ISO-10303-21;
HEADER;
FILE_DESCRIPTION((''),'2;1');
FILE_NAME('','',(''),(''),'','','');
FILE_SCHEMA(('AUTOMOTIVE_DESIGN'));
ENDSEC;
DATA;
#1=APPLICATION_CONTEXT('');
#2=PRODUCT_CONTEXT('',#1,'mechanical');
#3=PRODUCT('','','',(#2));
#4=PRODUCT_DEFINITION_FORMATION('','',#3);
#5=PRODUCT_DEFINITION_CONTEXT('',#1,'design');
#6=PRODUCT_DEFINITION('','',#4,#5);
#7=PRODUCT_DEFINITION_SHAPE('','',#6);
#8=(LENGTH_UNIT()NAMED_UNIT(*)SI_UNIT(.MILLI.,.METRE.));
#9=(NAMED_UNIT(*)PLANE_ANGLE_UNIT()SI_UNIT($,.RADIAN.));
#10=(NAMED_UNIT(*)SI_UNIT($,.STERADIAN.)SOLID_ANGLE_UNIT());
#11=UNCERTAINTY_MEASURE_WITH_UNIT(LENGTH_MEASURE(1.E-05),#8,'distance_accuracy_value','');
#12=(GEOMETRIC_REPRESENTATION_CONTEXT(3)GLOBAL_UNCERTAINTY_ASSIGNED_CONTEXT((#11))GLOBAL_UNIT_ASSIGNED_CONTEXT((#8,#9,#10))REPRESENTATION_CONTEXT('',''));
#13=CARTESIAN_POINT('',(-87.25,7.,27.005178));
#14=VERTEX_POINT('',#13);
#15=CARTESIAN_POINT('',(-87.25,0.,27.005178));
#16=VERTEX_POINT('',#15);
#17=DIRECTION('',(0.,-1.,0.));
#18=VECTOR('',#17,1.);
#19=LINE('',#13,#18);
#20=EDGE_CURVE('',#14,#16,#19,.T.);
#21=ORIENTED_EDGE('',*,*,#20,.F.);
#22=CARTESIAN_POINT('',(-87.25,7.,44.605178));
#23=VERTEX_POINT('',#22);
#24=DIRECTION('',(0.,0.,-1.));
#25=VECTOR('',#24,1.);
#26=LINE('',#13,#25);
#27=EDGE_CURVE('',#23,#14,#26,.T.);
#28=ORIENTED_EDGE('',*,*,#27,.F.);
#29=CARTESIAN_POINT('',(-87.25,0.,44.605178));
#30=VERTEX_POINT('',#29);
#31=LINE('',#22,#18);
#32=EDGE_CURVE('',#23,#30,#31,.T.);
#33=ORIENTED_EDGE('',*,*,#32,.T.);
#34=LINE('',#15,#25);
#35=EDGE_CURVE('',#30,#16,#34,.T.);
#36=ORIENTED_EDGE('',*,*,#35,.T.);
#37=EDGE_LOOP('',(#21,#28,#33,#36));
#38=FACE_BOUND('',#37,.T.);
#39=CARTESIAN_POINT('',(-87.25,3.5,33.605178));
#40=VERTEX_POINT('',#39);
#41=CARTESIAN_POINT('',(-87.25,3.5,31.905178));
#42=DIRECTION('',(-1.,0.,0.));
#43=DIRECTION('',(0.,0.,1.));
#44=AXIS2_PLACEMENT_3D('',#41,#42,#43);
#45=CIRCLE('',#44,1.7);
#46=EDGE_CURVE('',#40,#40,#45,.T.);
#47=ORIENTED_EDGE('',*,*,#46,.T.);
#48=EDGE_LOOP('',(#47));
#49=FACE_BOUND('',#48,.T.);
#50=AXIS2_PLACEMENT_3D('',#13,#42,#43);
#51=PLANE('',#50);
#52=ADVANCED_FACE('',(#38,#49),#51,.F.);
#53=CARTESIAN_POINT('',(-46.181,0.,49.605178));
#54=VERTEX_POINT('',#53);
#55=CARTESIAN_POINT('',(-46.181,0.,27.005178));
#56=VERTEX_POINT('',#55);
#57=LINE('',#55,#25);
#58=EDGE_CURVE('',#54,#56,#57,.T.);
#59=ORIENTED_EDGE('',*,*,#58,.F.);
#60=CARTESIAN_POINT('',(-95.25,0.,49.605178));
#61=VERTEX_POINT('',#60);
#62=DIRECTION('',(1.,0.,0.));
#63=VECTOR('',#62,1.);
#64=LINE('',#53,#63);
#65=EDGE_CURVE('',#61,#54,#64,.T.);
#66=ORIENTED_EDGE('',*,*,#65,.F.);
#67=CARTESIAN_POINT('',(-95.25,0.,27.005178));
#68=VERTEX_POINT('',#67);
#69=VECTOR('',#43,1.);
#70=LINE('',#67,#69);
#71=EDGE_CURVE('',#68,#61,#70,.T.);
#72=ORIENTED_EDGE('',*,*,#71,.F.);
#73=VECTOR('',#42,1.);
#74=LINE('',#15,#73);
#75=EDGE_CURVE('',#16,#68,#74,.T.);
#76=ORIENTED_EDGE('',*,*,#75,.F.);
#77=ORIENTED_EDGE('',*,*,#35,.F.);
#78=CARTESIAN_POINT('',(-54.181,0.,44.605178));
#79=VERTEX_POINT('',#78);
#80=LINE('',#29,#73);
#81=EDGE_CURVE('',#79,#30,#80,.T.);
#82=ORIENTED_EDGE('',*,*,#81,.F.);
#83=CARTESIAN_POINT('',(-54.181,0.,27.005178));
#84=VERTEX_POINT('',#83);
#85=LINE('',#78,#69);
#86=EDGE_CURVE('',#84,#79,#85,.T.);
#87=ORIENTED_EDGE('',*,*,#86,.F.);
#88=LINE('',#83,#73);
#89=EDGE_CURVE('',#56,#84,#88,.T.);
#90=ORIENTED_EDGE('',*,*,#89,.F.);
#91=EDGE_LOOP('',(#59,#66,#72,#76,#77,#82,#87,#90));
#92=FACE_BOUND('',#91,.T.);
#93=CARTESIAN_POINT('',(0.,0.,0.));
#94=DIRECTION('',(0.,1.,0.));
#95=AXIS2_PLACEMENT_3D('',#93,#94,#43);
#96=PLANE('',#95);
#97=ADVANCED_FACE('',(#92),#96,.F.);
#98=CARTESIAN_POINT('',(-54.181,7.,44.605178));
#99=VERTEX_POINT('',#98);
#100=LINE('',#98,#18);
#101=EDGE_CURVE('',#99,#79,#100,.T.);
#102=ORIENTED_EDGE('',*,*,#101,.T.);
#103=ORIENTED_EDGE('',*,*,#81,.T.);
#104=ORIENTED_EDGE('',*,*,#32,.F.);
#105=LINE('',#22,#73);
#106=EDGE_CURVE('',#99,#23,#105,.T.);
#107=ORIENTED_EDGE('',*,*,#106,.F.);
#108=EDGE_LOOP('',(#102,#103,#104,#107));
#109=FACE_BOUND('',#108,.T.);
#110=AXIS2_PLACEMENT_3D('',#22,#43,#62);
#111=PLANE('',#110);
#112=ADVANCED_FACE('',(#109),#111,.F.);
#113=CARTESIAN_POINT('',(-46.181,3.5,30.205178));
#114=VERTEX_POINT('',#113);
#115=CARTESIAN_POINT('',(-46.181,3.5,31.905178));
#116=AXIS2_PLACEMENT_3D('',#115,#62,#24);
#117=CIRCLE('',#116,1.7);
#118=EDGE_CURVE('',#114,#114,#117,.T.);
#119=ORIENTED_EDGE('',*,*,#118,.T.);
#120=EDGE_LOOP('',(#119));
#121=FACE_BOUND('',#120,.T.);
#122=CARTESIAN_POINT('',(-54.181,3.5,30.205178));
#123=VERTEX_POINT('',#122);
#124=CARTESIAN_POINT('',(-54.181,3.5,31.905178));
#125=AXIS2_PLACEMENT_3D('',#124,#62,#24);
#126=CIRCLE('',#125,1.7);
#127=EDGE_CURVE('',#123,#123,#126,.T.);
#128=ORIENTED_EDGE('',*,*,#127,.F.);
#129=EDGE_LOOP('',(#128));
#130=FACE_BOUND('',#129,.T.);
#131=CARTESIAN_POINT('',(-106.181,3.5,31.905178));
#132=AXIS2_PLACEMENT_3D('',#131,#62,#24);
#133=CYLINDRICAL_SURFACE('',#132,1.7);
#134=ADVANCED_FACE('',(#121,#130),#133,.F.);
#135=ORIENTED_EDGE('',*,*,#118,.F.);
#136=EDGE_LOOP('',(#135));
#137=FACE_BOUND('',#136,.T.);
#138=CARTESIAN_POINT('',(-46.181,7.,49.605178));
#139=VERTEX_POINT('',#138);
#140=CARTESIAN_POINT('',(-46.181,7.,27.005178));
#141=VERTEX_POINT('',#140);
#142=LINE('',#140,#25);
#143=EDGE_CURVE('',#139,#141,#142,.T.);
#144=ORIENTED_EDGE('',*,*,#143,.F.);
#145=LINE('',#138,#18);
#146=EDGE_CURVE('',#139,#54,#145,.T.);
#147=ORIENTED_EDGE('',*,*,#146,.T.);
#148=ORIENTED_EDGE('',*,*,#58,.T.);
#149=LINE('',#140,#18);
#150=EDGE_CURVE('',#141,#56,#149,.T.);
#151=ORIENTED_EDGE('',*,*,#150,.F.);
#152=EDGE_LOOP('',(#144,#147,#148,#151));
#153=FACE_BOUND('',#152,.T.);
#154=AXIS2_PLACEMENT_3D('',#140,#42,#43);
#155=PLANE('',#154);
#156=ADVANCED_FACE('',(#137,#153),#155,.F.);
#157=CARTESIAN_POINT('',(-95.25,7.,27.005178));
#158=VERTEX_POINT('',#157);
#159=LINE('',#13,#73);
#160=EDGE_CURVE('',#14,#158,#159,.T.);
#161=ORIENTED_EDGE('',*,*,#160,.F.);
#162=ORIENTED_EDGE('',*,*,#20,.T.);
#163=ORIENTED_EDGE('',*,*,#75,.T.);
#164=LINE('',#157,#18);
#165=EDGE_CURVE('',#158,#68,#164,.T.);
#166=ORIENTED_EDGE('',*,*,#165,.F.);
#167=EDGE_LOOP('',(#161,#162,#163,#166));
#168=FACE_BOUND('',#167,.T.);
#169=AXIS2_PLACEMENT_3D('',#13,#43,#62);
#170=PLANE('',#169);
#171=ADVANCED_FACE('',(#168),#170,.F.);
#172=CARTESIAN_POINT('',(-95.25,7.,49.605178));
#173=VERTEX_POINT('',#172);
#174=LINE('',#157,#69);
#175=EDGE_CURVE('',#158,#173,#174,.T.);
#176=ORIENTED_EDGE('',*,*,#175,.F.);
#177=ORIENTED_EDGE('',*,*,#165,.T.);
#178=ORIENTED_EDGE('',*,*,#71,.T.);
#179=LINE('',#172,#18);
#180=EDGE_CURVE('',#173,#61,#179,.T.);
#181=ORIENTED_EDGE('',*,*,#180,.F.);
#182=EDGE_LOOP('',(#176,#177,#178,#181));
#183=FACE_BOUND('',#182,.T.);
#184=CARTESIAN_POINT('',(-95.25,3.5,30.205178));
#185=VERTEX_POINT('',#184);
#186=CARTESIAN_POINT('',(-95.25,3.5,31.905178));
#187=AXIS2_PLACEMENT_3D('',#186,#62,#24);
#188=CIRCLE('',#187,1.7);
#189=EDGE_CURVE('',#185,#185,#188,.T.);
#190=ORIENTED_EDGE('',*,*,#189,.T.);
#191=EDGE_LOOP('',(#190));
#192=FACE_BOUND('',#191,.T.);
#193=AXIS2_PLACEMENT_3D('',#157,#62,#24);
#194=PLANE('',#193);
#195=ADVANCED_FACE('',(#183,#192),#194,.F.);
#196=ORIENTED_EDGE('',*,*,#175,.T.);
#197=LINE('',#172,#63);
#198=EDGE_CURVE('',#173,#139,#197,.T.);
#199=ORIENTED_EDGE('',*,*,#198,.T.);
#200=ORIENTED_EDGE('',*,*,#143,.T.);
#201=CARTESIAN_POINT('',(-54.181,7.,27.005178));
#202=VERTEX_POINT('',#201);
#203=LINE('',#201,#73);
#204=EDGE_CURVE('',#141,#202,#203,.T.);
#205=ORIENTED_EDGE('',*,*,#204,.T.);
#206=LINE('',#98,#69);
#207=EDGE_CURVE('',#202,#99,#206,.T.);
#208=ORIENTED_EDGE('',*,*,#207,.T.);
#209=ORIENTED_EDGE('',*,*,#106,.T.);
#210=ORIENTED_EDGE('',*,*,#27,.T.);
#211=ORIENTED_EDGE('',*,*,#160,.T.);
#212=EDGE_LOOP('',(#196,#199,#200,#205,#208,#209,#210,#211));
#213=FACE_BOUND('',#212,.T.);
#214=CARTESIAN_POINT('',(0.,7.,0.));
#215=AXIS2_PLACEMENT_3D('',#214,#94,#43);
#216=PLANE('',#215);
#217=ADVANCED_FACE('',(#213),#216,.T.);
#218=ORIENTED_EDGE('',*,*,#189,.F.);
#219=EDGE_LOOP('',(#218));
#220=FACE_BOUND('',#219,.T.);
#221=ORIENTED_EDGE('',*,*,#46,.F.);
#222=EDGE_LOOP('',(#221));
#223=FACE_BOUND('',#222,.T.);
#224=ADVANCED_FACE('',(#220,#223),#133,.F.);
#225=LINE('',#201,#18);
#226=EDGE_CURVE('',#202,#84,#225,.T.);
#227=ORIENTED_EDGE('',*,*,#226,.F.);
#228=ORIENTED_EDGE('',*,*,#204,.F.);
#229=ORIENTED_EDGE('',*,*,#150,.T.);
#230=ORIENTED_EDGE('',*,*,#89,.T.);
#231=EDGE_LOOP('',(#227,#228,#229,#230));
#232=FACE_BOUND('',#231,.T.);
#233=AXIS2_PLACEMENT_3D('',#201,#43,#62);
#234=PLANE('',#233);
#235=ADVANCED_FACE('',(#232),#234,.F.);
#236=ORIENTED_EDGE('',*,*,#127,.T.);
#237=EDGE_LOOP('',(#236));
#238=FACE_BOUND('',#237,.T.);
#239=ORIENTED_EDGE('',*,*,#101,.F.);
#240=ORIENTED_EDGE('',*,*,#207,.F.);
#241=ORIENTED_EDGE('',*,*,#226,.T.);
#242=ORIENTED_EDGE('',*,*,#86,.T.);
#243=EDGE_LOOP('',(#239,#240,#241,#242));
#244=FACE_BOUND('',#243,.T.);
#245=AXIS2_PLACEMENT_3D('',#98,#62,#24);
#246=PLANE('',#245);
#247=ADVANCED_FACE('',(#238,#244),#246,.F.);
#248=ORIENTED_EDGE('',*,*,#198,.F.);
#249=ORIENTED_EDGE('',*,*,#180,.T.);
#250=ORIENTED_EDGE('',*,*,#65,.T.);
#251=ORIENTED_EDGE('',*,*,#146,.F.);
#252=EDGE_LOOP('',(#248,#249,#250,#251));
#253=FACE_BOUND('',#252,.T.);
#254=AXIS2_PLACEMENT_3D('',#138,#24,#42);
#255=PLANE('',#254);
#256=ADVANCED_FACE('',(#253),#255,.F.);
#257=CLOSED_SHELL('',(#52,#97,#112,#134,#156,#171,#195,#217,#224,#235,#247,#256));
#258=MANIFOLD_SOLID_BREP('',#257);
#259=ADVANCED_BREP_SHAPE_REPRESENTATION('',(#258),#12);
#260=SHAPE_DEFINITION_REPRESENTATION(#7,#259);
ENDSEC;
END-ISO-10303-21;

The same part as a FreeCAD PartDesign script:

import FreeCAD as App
import Part
import Sketcher

V = App.Vector
Q = App.Units.Quantity

doc = App.newDocument("Part")
params = doc.addObject("Spreadsheet::Sheet", "Params")
for row, (alias, value) in enumerate([
    ("sketch1_width", "8 mm"),
    ("sketch1_height", "17.6 mm"),
    ("sketch1_height2", "22.6 mm"),
    ("pad1_length", "7 mm"),
    ("sketch2_diameter", "3.4 mm"),
    ("pocket1_length", "60 mm"),
], start=1):
    params.set(f"A{row}", alias)
    params.set(f"B{row}", "=" + value)
    params.setAlias(f"B{row}", alias)

body = doc.addObject("PartDesign::Body", "Body")

# Sketch on XZ plane
sketch1 = doc.addObject("Sketcher::SketchObject", "Sketch")
body.addObject(sketch1)
sketch1.AttachmentSupport = (doc.XZ_Plane, [""])
sketch1.MapMode = "FlatFace"
sketch1.addGeometry([
    Part.LineSegment(V(-87, 45, 0), V(-87, 27, 0)),  # 0
    Part.LineSegment(V(-87, 27, 0), V(-95, 27, 0)),  # 1
    Part.LineSegment(V(-95, 27, 0), V(-95, 50, 0)),  # 2
    Part.LineSegment(V(-95, 50, 0), V(-46, 50, 0)),  # 3
    Part.LineSegment(V(-46, 50, 0), V(-46, 27, 0)),  # 4
    Part.LineSegment(V(-46, 27, 0), V(-54, 27, 0)),  # 5
    Part.LineSegment(V(-54, 27, 0), V(-54, 45, 0)),  # 6
    Part.LineSegment(V(-54, 45, 0), V(-87, 45, 0)),  # 7
], False)
sketch1.addConstraint([
    Sketcher.Constraint("Coincident", 0, 2, 1, 1),
    Sketcher.Constraint("Coincident", 1, 2, 2, 1),
    Sketcher.Constraint("Coincident", 2, 2, 3, 1),
    Sketcher.Constraint("Coincident", 3, 2, 4, 1),
    Sketcher.Constraint("Coincident", 4, 2, 5, 1),
    Sketcher.Constraint("Coincident", 5, 2, 6, 1),
    Sketcher.Constraint("Coincident", 6, 2, 7, 1),
    Sketcher.Constraint("Coincident", 7, 2, 0, 1),
    Sketcher.Constraint("Vertical", 0),
    Sketcher.Constraint("Horizontal", 1),
    Sketcher.Constraint("Vertical", 2),
    Sketcher.Constraint("Horizontal", 3),
    Sketcher.Constraint("Vertical", 4),
    Sketcher.Constraint("Horizontal", 5),
    Sketcher.Constraint("Vertical", 6),
    Sketcher.Constraint("Horizontal", 7),
    Sketcher.Constraint("Horizontal", 1, 2, 4, 2),
    Sketcher.Constraint("Equal", 1, 5),
    Sketcher.Constraint("DistanceX", 1, 2, 1, 1, Q("8 mm")),
    Sketcher.Constraint("DistanceY", 0, 2, 0, 1, Q("17.6 mm")),
    Sketcher.Constraint("DistanceY", 2, 1, 2, 2, Q("22.6 mm")),
    Sketcher.Constraint("DistanceX", 3, 1, 3, 2, Q("49.069 mm")),
    Sketcher.Constraint("DistanceX", 0, 2, -1, 1, Q("87.25 mm")),
    Sketcher.Constraint("DistanceY", -1, 1, 0, 2, Q("27.005178 mm")),
])
sketch1.setExpression("Constraints[18]", "Params.sketch1_width")
sketch1.setExpression("Constraints[19]", "Params.sketch1_height")
sketch1.setExpression("Constraints[20]", "Params.sketch1_height2")
pad1 = doc.addObject("PartDesign::Pad", "Pad")
body.addObject(pad1)
pad1.Profile = sketch1
pad1.setExpression("Length", "Params.pad1_length")
pad1.Reversed = True

# Sketch on YZ plane
sketch2 = doc.addObject("Sketcher::SketchObject", "Sketch001")
body.addObject(sketch2)
sketch2.AttachmentSupport = (doc.YZ_Plane, [""])
sketch2.MapMode = "FlatFace"
sketch2.AttachmentOffset = App.Placement(V(0, 0, -46.181), App.Rotation())
sketch2.addGeometry(Part.Circle(V(3.5, 31.9, 0), V(0, 0, 1), 1.7), False)
sketch2.addConstraint([
    Sketcher.Constraint("Diameter", 0, Q("3.4 mm")),
    Sketcher.Constraint("DistanceX", -1, 1, 0, 3, Q("3.5 mm")),
    Sketcher.Constraint("DistanceY", -1, 1, 0, 3, Q("31.905178 mm")),
])
sketch2.setExpression("Constraints[0]", "Params.sketch2_diameter")
pocket1 = doc.addObject("PartDesign::Pocket", "Pocket")
body.addObject(pocket1)
pocket1.Profile = sketch2
pocket1.setExpression("Length", "Params.pocket1_length")

doc.recompute()
